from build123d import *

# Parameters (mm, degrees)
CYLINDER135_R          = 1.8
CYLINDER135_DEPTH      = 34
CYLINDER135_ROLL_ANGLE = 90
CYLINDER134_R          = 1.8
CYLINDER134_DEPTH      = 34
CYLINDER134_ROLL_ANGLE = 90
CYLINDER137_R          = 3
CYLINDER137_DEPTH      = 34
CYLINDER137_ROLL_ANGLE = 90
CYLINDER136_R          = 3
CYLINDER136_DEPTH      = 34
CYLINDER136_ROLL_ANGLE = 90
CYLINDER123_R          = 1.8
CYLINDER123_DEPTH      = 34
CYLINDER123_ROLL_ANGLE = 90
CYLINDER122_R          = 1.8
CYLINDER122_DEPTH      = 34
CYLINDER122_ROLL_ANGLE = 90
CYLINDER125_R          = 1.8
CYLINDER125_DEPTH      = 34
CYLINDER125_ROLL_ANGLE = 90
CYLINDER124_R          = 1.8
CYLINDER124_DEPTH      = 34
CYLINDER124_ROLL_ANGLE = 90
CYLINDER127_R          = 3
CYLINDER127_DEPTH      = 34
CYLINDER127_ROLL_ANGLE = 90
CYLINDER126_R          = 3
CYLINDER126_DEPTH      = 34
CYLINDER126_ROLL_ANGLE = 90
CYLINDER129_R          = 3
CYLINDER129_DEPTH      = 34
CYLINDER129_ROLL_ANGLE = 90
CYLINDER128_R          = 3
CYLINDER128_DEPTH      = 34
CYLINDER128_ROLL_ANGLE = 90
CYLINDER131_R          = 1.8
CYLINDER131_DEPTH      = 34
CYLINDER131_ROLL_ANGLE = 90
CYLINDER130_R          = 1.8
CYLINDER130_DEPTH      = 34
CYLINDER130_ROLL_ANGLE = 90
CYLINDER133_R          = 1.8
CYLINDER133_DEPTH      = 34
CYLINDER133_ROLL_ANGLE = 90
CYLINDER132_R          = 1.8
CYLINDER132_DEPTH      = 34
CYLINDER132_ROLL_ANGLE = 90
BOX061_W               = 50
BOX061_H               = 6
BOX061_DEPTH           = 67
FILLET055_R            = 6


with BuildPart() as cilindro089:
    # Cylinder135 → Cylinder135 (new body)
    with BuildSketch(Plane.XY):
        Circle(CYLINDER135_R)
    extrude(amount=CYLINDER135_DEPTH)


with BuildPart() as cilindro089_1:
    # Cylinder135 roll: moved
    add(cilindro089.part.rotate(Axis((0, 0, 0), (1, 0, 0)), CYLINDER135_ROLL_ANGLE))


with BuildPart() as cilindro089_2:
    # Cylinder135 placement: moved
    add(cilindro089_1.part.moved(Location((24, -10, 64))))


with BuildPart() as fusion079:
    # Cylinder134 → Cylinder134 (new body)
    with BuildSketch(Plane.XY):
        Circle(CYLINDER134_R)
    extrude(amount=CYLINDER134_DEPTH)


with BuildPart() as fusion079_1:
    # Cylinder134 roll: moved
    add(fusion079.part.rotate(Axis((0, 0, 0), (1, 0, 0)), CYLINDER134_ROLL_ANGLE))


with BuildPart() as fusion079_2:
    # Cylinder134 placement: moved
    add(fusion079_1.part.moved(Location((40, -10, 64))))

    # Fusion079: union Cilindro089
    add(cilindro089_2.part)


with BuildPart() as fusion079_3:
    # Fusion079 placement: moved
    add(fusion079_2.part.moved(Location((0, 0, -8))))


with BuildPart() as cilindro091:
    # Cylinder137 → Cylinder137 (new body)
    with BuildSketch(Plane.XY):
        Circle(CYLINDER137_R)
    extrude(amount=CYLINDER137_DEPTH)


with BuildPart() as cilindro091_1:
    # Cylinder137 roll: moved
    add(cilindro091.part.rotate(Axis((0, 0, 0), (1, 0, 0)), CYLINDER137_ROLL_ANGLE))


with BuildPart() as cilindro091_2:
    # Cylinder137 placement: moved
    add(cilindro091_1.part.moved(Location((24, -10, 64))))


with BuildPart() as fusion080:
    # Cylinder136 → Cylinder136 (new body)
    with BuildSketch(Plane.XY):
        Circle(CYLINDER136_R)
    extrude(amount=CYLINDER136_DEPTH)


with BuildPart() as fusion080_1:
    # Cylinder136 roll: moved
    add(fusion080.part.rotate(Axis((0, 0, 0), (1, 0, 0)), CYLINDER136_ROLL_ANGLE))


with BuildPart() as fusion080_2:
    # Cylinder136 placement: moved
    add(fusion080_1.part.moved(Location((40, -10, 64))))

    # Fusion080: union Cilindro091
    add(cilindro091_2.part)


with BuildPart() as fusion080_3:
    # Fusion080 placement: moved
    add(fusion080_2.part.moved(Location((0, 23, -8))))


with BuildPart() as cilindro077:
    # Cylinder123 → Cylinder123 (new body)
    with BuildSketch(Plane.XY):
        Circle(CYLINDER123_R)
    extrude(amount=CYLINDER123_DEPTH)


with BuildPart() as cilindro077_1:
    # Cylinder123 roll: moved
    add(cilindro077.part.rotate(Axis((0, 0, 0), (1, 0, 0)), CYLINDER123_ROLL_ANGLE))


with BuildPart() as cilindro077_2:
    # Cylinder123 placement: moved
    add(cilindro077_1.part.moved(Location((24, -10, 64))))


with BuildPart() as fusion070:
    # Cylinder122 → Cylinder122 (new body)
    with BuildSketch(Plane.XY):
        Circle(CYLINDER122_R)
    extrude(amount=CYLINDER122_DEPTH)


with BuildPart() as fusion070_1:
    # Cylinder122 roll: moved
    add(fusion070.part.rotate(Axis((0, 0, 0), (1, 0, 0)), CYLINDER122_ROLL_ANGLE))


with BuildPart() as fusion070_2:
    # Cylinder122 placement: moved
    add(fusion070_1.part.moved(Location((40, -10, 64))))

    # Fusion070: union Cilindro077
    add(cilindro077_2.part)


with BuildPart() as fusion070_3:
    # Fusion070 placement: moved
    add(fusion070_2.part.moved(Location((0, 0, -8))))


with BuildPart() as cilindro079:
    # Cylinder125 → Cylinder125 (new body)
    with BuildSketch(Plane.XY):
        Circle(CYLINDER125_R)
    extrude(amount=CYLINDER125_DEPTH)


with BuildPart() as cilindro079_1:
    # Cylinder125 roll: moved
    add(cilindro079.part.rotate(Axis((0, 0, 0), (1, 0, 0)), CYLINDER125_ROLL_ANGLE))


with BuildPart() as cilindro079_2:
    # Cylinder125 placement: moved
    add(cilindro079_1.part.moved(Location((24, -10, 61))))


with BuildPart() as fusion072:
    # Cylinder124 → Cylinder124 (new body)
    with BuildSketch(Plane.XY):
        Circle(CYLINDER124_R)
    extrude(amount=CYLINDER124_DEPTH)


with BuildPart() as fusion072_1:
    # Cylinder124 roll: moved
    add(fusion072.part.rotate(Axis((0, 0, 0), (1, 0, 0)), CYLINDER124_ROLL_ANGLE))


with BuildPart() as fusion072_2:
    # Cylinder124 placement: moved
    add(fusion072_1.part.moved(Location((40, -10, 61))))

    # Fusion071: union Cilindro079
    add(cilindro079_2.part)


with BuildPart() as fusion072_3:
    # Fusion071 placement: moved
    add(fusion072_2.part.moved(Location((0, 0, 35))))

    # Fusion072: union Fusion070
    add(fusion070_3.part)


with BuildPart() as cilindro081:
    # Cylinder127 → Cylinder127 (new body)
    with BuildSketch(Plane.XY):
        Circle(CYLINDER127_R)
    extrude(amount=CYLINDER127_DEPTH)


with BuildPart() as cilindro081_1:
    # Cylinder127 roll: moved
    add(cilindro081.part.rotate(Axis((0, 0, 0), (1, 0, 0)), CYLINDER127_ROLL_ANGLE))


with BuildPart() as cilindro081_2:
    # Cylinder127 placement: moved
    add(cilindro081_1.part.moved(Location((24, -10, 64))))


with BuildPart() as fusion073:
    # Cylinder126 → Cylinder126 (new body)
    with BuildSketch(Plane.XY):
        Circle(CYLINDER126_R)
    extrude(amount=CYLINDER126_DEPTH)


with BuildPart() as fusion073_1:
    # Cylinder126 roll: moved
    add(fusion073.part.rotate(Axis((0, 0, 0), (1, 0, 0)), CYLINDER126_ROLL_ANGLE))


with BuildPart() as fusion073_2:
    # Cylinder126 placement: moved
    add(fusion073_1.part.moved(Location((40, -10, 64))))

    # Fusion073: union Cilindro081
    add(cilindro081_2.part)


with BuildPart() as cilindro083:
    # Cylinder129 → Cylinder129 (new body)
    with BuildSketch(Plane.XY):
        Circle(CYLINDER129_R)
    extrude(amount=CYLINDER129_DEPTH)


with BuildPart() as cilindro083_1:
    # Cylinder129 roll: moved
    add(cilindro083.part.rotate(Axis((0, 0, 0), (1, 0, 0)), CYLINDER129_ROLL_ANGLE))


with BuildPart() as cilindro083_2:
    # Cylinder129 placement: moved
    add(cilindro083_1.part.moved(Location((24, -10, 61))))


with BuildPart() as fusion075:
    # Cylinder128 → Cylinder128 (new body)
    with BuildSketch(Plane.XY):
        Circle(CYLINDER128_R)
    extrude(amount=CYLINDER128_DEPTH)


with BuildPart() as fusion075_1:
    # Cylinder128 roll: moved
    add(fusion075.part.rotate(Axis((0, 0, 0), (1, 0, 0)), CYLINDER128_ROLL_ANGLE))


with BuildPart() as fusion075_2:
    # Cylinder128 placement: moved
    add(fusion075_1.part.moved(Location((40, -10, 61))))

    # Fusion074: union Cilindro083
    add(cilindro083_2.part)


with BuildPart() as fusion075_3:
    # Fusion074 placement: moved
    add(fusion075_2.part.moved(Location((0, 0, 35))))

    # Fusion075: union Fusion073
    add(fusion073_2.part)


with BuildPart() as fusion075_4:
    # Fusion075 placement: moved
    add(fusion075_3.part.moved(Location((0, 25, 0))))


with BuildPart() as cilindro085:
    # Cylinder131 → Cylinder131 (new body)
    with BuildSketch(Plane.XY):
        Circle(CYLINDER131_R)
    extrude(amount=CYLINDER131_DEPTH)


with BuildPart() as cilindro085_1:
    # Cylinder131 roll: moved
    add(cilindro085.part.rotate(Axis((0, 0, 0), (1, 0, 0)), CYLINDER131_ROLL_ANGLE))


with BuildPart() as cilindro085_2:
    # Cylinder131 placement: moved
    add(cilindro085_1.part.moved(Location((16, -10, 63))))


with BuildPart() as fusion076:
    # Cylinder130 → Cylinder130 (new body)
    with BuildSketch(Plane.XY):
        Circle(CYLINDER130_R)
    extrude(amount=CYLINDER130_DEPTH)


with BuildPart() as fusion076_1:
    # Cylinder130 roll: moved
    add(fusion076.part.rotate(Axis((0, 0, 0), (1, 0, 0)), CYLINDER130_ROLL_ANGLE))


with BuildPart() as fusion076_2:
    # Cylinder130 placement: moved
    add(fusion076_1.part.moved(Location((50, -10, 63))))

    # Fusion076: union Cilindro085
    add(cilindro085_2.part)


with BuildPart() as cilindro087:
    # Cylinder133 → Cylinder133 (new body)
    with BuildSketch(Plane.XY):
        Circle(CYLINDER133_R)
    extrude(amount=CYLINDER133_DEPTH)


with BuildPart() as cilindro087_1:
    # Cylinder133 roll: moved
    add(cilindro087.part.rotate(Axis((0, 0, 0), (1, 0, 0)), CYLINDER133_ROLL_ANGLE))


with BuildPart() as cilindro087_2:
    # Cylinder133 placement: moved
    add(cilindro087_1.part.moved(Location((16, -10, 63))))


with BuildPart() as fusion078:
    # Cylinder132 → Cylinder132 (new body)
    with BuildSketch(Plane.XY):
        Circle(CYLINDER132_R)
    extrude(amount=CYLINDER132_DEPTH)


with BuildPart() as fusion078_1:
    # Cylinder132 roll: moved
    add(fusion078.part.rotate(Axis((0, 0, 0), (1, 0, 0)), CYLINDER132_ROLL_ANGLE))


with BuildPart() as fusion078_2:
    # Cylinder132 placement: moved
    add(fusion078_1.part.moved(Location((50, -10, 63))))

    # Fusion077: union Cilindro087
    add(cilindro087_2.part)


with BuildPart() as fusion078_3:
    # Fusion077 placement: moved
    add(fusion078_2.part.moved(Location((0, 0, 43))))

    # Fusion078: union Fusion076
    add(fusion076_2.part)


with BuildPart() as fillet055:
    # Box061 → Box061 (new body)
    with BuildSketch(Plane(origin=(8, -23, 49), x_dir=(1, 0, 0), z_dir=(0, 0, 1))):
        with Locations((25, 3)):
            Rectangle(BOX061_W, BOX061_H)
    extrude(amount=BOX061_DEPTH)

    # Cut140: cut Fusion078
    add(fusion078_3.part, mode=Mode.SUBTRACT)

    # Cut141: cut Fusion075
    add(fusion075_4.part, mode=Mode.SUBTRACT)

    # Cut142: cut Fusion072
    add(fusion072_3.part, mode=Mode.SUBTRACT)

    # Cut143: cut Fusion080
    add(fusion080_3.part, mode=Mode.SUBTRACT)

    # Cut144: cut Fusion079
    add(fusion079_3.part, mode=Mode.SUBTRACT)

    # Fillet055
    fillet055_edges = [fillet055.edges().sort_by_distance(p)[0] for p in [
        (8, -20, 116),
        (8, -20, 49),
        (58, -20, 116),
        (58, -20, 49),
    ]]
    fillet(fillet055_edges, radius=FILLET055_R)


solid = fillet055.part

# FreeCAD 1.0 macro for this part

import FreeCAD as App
import Part
import Sketcher

V = App.Vector
Q = App.Units.Quantity


def edges_at(feature, points):
    """Names of the edges that pass closest to the given points."""
    edges = feature.Shape.Edges
    near = lambda p: min(range(len(edges)), key=lambda i: edges[i].distToShape(Part.Vertex(*p))[0])
    return sorted({f"Edge{near(p) + 1}" for p in points})

doc = App.newDocument("Part")
body = doc.addObject("PartDesign::Body", "Body")

# Sketch on XY plane
sketch1 = doc.addObject("Sketcher::SketchObject", "Sketch")
body.addObject(sketch1)
sketch1.AttachmentSupport = (doc.XY_Plane, [""])
sketch1.MapMode = "FlatFace"
sketch1.addGeometry(Part.Circle(V(0, 0, 0), V(0, 0, 1), 1.8), False)
sketch1.addConstraint([
    Sketcher.Constraint("Coincident", 0, 3, -1, 1),
    Sketcher.Constraint("Diameter", 0, Q("3.6 mm")),
])
pad1 = doc.addObject("PartDesign::Pad", "Pad")
body.addObject(pad1)
pad1.Profile = sketch1
pad1.Length = 34
body2 = doc.addObject("PartDesign::Body", "Body001")
doc.recompute()

body.Placement = App.Placement(V(0, 0, 0), App.Rotation(V(1, 0, 0), 90))
boolean = doc.addObject("PartDesign::Boolean", "Boolean")
body2.addObject(boolean)
boolean.Type = "Fuse"
boolean.addObjects([body])
body3 = doc.addObject("PartDesign::Body", "Body002")
doc.recompute()

body2.Placement = App.Placement(V(24, -10, 64), App.Rotation(V(0, 0, 1), 0))
boolean2 = doc.addObject("PartDesign::Boolean", "Boolean001")
body3.addObject(boolean2)
boolean2.Type = "Fuse"
boolean2.addObjects([body2])
body4 = doc.addObject("PartDesign::Body", "Body003")

# Sketch on XY plane
sketch2 = doc.addObject("Sketcher::SketchObject", "Sketch001")
body4.addObject(sketch2)
sketch2.AttachmentSupport = (doc.getObject("XY_Plane003"), [""])
sketch2.MapMode = "FlatFace"
sketch2.addGeometry(Part.Circle(V(0, 0, 0), V(0, 0, 1), 1.8), False)
sketch2.addConstraint([
    Sketcher.Constraint("Coincident", 0, 3, -1, 1),
    Sketcher.Constraint("Diameter", 0, Q("3.6 mm")),
])
pad2 = doc.addObject("PartDesign::Pad", "Pad001")
body4.addObject(pad2)
pad2.Profile = sketch2
pad2.Length = 34
body5 = doc.addObject("PartDesign::Body", "Body004")
doc.recompute()

body4.Placement = App.Placement(V(0, 0, 0), App.Rotation(V(1, 0, 0), 90))
boolean3 = doc.addObject("PartDesign::Boolean", "Boolean002")
body5.addObject(boolean3)
boolean3.Type = "Fuse"
boolean3.addObjects([body4])
body6 = doc.addObject("PartDesign::Body", "Body005")
body6.AllowCompound = True
doc.recompute()

body5.Placement = App.Placement(V(40, -10, 64), App.Rotation(V(0, 0, 1), 0))
boolean4 = doc.addObject("PartDesign::Boolean", "Boolean003")
body6.addObject(boolean4)
boolean4.Type = "Fuse"
boolean4.addObjects([body5])
doc.recompute()

boolean5 = doc.addObject("PartDesign::Boolean", "Boolean004")
body6.addObject(boolean5)
boolean5.Type = "Fuse"
boolean5.addObjects([body3])
body7 = doc.addObject("PartDesign::Body", "Body006")
body7.AllowCompound = True
doc.recompute()

body6.Placement = App.Placement(V(0, 0, -8), App.Rotation(V(0, 0, 1), 0))
boolean6 = doc.addObject("PartDesign::Boolean", "Boolean005")
body7.addObject(boolean6)
boolean6.Type = "Fuse"
boolean6.addObjects([body6])
body8 = doc.addObject("PartDesign::Body", "Body007")

# Sketch on XY plane
sketch3 = doc.addObject("Sketcher::SketchObject", "Sketch002")
body8.addObject(sketch3)
sketch3.AttachmentSupport = (doc.getObject("XY_Plane007"), [""])
sketch3.MapMode = "FlatFace"
sketch3.addGeometry(Part.Circle(V(0, 0, 0), V(0, 0, 1), 3), False)
sketch3.addConstraint([
    Sketcher.Constraint("Coincident", 0, 3, -1, 1),
    Sketcher.Constraint("Diameter", 0, Q("6 mm")),
])
pad3 = doc.addObject("PartDesign::Pad", "Pad002")
body8.addObject(pad3)
pad3.Profile = sketch3
pad3.Length = 34
body9 = doc.addObject("PartDesign::Body", "Body008")
doc.recompute()

body8.Placement = App.Placement(V(0, 0, 0), App.Rotation(V(1, 0, 0), 90))
boolean7 = doc.addObject("PartDesign::Boolean", "Boolean006")
body9.addObject(boolean7)
boolean7.Type = "Fuse"
boolean7.addObjects([body8])
body10 = doc.addObject("PartDesign::Body", "Body009")
doc.recompute()

body9.Placement = App.Placement(V(24, -10, 64), App.Rotation(V(0, 0, 1), 0))
boolean8 = doc.addObject("PartDesign::Boolean", "Boolean007")
body10.addObject(boolean8)
boolean8.Type = "Fuse"
boolean8.addObjects([body9])
body11 = doc.addObject("PartDesign::Body", "Body010")

# Sketch on XY plane
sketch4 = doc.addObject("Sketcher::SketchObject", "Sketch003")
body11.addObject(sketch4)
sketch4.AttachmentSupport = (doc.getObject("XY_Plane010"), [""])
sketch4.MapMode = "FlatFace"
sketch4.addGeometry(Part.Circle(V(0, 0, 0), V(0, 0, 1), 3), False)
sketch4.addConstraint([
    Sketcher.Constraint("Coincident", 0, 3, -1, 1),
    Sketcher.Constraint("Diameter", 0, Q("6 mm")),
])
pad4 = doc.addObject("PartDesign::Pad", "Pad003")
body11.addObject(pad4)
pad4.Profile = sketch4
pad4.Length = 34
body12 = doc.addObject("PartDesign::Body", "Body011")
doc.recompute()

body11.Placement = App.Placement(V(0, 0, 0), App.Rotation(V(1, 0, 0), 90))
boolean9 = doc.addObject("PartDesign::Boolean", "Boolean008")
body12.addObject(boolean9)
boolean9.Type = "Fuse"
boolean9.addObjects([body11])
body13 = doc.addObject("PartDesign::Body", "Body012")
body13.AllowCompound = True
doc.recompute()

body12.Placement = App.Placement(V(40, -10, 64), App.Rotation(V(0, 0, 1), 0))
boolean10 = doc.addObject("PartDesign::Boolean", "Boolean009")
body13.addObject(boolean10)
boolean10.Type = "Fuse"
boolean10.addObjects([body12])
doc.recompute()

boolean11 = doc.addObject("PartDesign::Boolean", "Boolean010")
body13.addObject(boolean11)
boolean11.Type = "Fuse"
boolean11.addObjects([body10])
body14 = doc.addObject("PartDesign::Body", "Body013")
body14.AllowCompound = True
doc.recompute()

body13.Placement = App.Placement(V(0, 23, -8), App.Rotation(V(0, 0, 1), 0))
boolean12 = doc.addObject("PartDesign::Boolean", "Boolean011")
body14.addObject(boolean12)
boolean12.Type = "Fuse"
boolean12.addObjects([body13])
body15 = doc.addObject("PartDesign::Body", "Body014")

# Sketch on XY plane
sketch5 = doc.addObject("Sketcher::SketchObject", "Sketch004")
body15.addObject(sketch5)
sketch5.AttachmentSupport = (doc.getObject("XY_Plane014"), [""])
sketch5.MapMode = "FlatFace"
sketch5.addGeometry(Part.Circle(V(0, 0, 0), V(0, 0, 1), 1.8), False)
sketch5.addConstraint([
    Sketcher.Constraint("Coincident", 0, 3, -1, 1),
    Sketcher.Constraint("Diameter", 0, Q("3.6 mm")),
])
pad5 = doc.addObject("PartDesign::Pad", "Pad004")
body15.addObject(pad5)
pad5.Profile = sketch5
pad5.Length = 34
body16 = doc.addObject("PartDesign::Body", "Body015")
doc.recompute()

body15.Placement = App.Placement(V(0, 0, 0), App.Rotation(V(1, 0, 0), 90))
boolean13 = doc.addObject("PartDesign::Boolean", "Boolean012")
body16.addObject(boolean13)
boolean13.Type = "Fuse"
boolean13.addObjects([body15])
body17 = doc.addObject("PartDesign::Body", "Body016")
doc.recompute()

body16.Placement = App.Placement(V(24, -10, 64), App.Rotation(V(0, 0, 1), 0))
boolean14 = doc.addObject("PartDesign::Boolean", "Boolean013")
body17.addObject(boolean14)
boolean14.Type = "Fuse"
boolean14.addObjects([body16])
body18 = doc.addObject("PartDesign::Body", "Body017")

# Sketch on XY plane
sketch6 = doc.addObject("Sketcher::SketchObject", "Sketch005")
body18.addObject(sketch6)
sketch6.AttachmentSupport = (doc.getObject("XY_Plane017"), [""])
sketch6.MapMode = "FlatFace"
sketch6.addGeometry(Part.Circle(V(0, 0, 0), V(0, 0, 1), 1.8), False)
sketch6.addConstraint([
    Sketcher.Constraint("Coincident", 0, 3, -1, 1),
    Sketcher.Constraint("Diameter", 0, Q("3.6 mm")),
])
pad6 = doc.addObject("PartDesign::Pad", "Pad005")
body18.addObject(pad6)
pad6.Profile = sketch6
pad6.Length = 34
body19 = doc.addObject("PartDesign::Body", "Body018")
doc.recompute()

body18.Placement = App.Placement(V(0, 0, 0), App.Rotation(V(1, 0, 0), 90))
boolean15 = doc.addObject("PartDesign::Boolean", "Boolean014")
body19.addObject(boolean15)
boolean15.Type = "Fuse"
boolean15.addObjects([body18])
body20 = doc.addObject("PartDesign::Body", "Body019")
body20.AllowCompound = True
doc.recompute()

body19.Placement = App.Placement(V(40, -10, 64), App.Rotation(V(0, 0, 1), 0))
boolean16 = doc.addObject("PartDesign::Boolean", "Boolean015")
body20.addObject(boolean16)
boolean16.Type = "Fuse"
boolean16.addObjects([body19])
doc.recompute()

boolean17 = doc.addObject("PartDesign::Boolean", "Boolean016")
body20.addObject(boolean17)
boolean17.Type = "Fuse"
boolean17.addObjects([body17])
body21 = doc.addObject("PartDesign::Body", "Body020")
body21.AllowCompound = True
doc.recompute()

body20.Placement = App.Placement(V(0, 0, -8), App.Rotation(V(0, 0, 1), 0))
boolean18 = doc.addObject("PartDesign::Boolean", "Boolean017")
body21.addObject(boolean18)
boolean18.Type = "Fuse"
boolean18.addObjects([body20])
body22 = doc.addObject("PartDesign::Body", "Body021")

# Sketch on XY plane
sketch7 = doc.addObject("Sketcher::SketchObject", "Sketch006")
body22.addObject(sketch7)
sketch7.AttachmentSupport = (doc.getObject("XY_Plane021"), [""])
sketch7.MapMode = "FlatFace"
sketch7.addGeometry(Part.Circle(V(0, 0, 0), V(0, 0, 1), 1.8), False)
sketch7.addConstraint([
    Sketcher.Constraint("Coincident", 0, 3, -1, 1),
    Sketcher.Constraint("Diameter", 0, Q("3.6 mm")),
])
pad7 = doc.addObject("PartDesign::Pad", "Pad006")
body22.addObject(pad7)
pad7.Profile = sketch7
pad7.Length = 34
body23 = doc.addObject("PartDesign::Body", "Body022")
doc.recompute()

body22.Placement = App.Placement(V(0, 0, 0), App.Rotation(V(1, 0, 0), 90))
boolean19 = doc.addObject("PartDesign::Boolean", "Boolean018")
body23.addObject(boolean19)
boolean19.Type = "Fuse"
boolean19.addObjects([body22])
body24 = doc.addObject("PartDesign::Body", "Body023")
doc.recompute()

body23.Placement = App.Placement(V(24, -10, 61), App.Rotation(V(0, 0, 1), 0))
boolean20 = doc.addObject("PartDesign::Boolean", "Boolean019")
body24.addObject(boolean20)
boolean20.Type = "Fuse"
boolean20.addObjects([body23])
body25 = doc.addObject("PartDesign::Body", "Body024")

# Sketch on XY plane
sketch8 = doc.addObject("Sketcher::SketchObject", "Sketch007")
body25.addObject(sketch8)
sketch8.AttachmentSupport = (doc.getObject("XY_Plane024"), [""])
sketch8.MapMode = "FlatFace"
sketch8.addGeometry(Part.Circle(V(0, 0, 0), V(0, 0, 1), 1.8), False)
sketch8.addConstraint([
    Sketcher.Constraint("Coincident", 0, 3, -1, 1),
    Sketcher.Constraint("Diameter", 0, Q("3.6 mm")),
])
pad8 = doc.addObject("PartDesign::Pad", "Pad007")
body25.addObject(pad8)
pad8.Profile = sketch8
pad8.Length = 34
body26 = doc.addObject("PartDesign::Body", "Body025")
doc.recompute()

body25.Placement = App.Placement(V(0, 0, 0), App.Rotation(V(1, 0, 0), 90))
boolean21 = doc.addObject("PartDesign::Boolean", "Boolean020")
body26.addObject(boolean21)
boolean21.Type = "Fuse"
boolean21.addObjects([body25])
body27 = doc.addObject("PartDesign::Body", "Body026")
body27.AllowCompound = True
doc.recompute()

body26.Placement = App.Placement(V(40, -10, 61), App.Rotation(V(0, 0, 1), 0))
boolean22 = doc.addObject("PartDesign::Boolean", "Boolean021")
body27.addObject(boolean22)
boolean22.Type = "Fuse"
boolean22.addObjects([body26])
doc.recompute()

boolean23 = doc.addObject("PartDesign::Boolean", "Boolean022")
body27.addObject(boolean23)
boolean23.Type = "Fuse"
boolean23.addObjects([body24])
body28 = doc.addObject("PartDesign::Body", "Body027")
body28.AllowCompound = True
doc.recompute()

body27.Placement = App.Placement(V(0, 0, 35), App.Rotation(V(0, 0, 1), 0))
boolean24 = doc.addObject("PartDesign::Boolean", "Boolean023")
body28.addObject(boolean24)
boolean24.Type = "Fuse"
boolean24.addObjects([body27])
doc.recompute()

boolean25 = doc.addObject("PartDesign::Boolean", "Boolean024")
body28.addObject(boolean25)
boolean25.Type = "Fuse"
boolean25.addObjects([body21])
body29 = doc.addObject("PartDesign::Body", "Body028")

# Sketch on XY plane
sketch9 = doc.addObject("Sketcher::SketchObject", "Sketch008")
body29.addObject(sketch9)
sketch9.AttachmentSupport = (doc.getObject("XY_Plane028"), [""])
sketch9.MapMode = "FlatFace"
sketch9.addGeometry(Part.Circle(V(0, 0, 0), V(0, 0, 1), 3), False)
sketch9.addConstraint([
    Sketcher.Constraint("Coincident", 0, 3, -1, 1),
    Sketcher.Constraint("Diameter", 0, Q("6 mm")),
])
pad9 = doc.addObject("PartDesign::Pad", "Pad008")
body29.addObject(pad9)
pad9.Profile = sketch9
pad9.Length = 34
body30 = doc.addObject("PartDesign::Body", "Body029")
doc.recompute()

body29.Placement = App.Placement(V(0, 0, 0), App.Rotation(V(1, 0, 0), 90))
boolean26 = doc.addObject("PartDesign::Boolean", "Boolean025")
body30.addObject(boolean26)
boolean26.Type = "Fuse"
boolean26.addObjects([body29])
body31 = doc.addObject("PartDesign::Body", "Body030")
doc.recompute()

body30.Placement = App.Placement(V(24, -10, 64), App.Rotation(V(0, 0, 1), 0))
boolean27 = doc.addObject("PartDesign::Boolean", "Boolean026")
body31.addObject(boolean27)
boolean27.Type = "Fuse"
boolean27.addObjects([body30])
body32 = doc.addObject("PartDesign::Body", "Body031")

# Sketch on XY plane
sketch10 = doc.addObject("Sketcher::SketchObject", "Sketch009")
body32.addObject(sketch10)
sketch10.AttachmentSupport = (doc.getObject("XY_Plane031"), [""])
sketch10.MapMode = "FlatFace"
sketch10.addGeometry(Part.Circle(V(0, 0, 0), V(0, 0, 1), 3), False)
sketch10.addConstraint([
    Sketcher.Constraint("Coincident", 0, 3, -1, 1),
    Sketcher.Constraint("Diameter", 0, Q("6 mm")),
])
pad10 = doc.addObject("PartDesign::Pad", "Pad009")
body32.addObject(pad10)
pad10.Profile = sketch10
pad10.Length = 34
body33 = doc.addObject("PartDesign::Body", "Body032")
doc.recompute()

body32.Placement = App.Placement(V(0, 0, 0), App.Rotation(V(1, 0, 0), 90))
boolean28 = doc.addObject("PartDesign::Boolean", "Boolean027")
body33.addObject(boolean28)
boolean28.Type = "Fuse"
boolean28.addObjects([body32])
body34 = doc.addObject("PartDesign::Body", "Body033")
body34.AllowCompound = True
doc.recompute()

body33.Placement = App.Placement(V(40, -10, 64), App.Rotation(V(0, 0, 1), 0))
boolean29 = doc.addObject("PartDesign::Boolean", "Boolean028")
body34.addObject(boolean29)
boolean29.Type = "Fuse"
boolean29.addObjects([body33])
doc.recompute()

boolean30 = doc.addObject("PartDesign::Boolean", "Boolean029")
body34.addObject(boolean30)
boolean30.Type = "Fuse"
boolean30.addObjects([body31])
body35 = doc.addObject("PartDesign::Body", "Body034")

# Sketch on XY plane
sketch11 = doc.addObject("Sketcher::SketchObject", "Sketch010")
body35.addObject(sketch11)
sketch11.AttachmentSupport = (doc.getObject("XY_Plane034"), [""])
sketch11.MapMode = "FlatFace"
sketch11.addGeometry(Part.Circle(V(0, 0, 0), V(0, 0, 1), 3), False)
sketch11.addConstraint([
    Sketcher.Constraint("Coincident", 0, 3, -1, 1),
    Sketcher.Constraint("Diameter", 0, Q("6 mm")),
])
pad11 = doc.addObject("PartDesign::Pad", "Pad010")
body35.addObject(pad11)
pad11.Profile = sketch11
pad11.Length = 34
body36 = doc.addObject("PartDesign::Body", "Body035")
doc.recompute()

body35.Placement = App.Placement(V(0, 0, 0), App.Rotation(V(1, 0, 0), 90))
boolean31 = doc.addObject("PartDesign::Boolean", "Boolean030")
body36.addObject(boolean31)
boolean31.Type = "Fuse"
boolean31.addObjects([body35])
body37 = doc.addObject("PartDesign::Body", "Body036")
doc.recompute()

body36.Placement = App.Placement(V(24, -10, 61), App.Rotation(V(0, 0, 1), 0))
boolean32 = doc.addObject("PartDesign::Boolean", "Boolean031")
body37.addObject(boolean32)
boolean32.Type = "Fuse"
boolean32.addObjects([body36])
body38 = doc.addObject("PartDesign::Body", "Body037")

# Sketch on XY plane
sketch12 = doc.addObject("Sketcher::SketchObject", "Sketch011")
body38.addObject(sketch12)
sketch12.AttachmentSupport = (doc.getObject("XY_Plane037"), [""])
sketch12.MapMode = "FlatFace"
sketch12.addGeometry(Part.Circle(V(0, 0, 0), V(0, 0, 1), 3), False)
sketch12.addConstraint([
    Sketcher.Constraint("Coincident", 0, 3, -1, 1),
    Sketcher.Constraint("Diameter", 0, Q("6 mm")),
])
pad12 = doc.addObject("PartDesign::Pad", "Pad011")
body38.addObject(pad12)
pad12.Profile = sketch12
pad12.Length = 34
body39 = doc.addObject("PartDesign::Body", "Body038")
doc.recompute()

body38.Placement = App.Placement(V(0, 0, 0), App.Rotation(V(1, 0, 0), 90))
boolean33 = doc.addObject("PartDesign::Boolean", "Boolean032")
body39.addObject(boolean33)
boolean33.Type = "Fuse"
boolean33.addObjects([body38])
body40 = doc.addObject("PartDesign::Body", "Body039")
body40.AllowCompound = True
doc.recompute()

body39.Placement = App.Placement(V(40, -10, 61), App.Rotation(V(0, 0, 1), 0))
boolean34 = doc.addObject("PartDesign::Boolean", "Boolean033")
body40.addObject(boolean34)
boolean34.Type = "Fuse"
boolean34.addObjects([body39])
doc.recompute()

boolean35 = doc.addObject("PartDesign::Boolean", "Boolean034")
body40.addObject(boolean35)
boolean35.Type = "Fuse"
boolean35.addObjects([body37])
body41 = doc.addObject("PartDesign::Body", "Body040")
body41.AllowCompound = True
doc.recompute()

body40.Placement = App.Placement(V(0, 0, 35), App.Rotation(V(0, 0, 1), 0))
boolean36 = doc.addObject("PartDesign::Boolean", "Boolean035")
body41.addObject(boolean36)
boolean36.Type = "Fuse"
boolean36.addObjects([body40])
doc.recompute()

boolean37 = doc.addObject("PartDesign::Boolean", "Boolean036")
body41.addObject(boolean37)
boolean37.Type = "Fuse"
boolean37.addObjects([body34])
body42 = doc.addObject("PartDesign::Body", "Body041")
body42.AllowCompound = True
doc.recompute()

body41.Placement = App.Placement(V(0, 25, 0), App.Rotation(V(0, 0, 1), 0))
boolean38 = doc.addObject("PartDesign::Boolean", "Boolean037")
body42.addObject(boolean38)
boolean38.Type = "Fuse"
boolean38.addObjects([body41])
body43 = doc.addObject("PartDesign::Body", "Body042")

# Sketch on XY plane
sketch13 = doc.addObject("Sketcher::SketchObject", "Sketch012")
body43.addObject(sketch13)
sketch13.AttachmentSupport = (doc.getObject("XY_Plane042"), [""])
sketch13.MapMode = "FlatFace"
sketch13.addGeometry(Part.Circle(V(0, 0, 0), V(0, 0, 1), 1.8), False)
sketch13.addConstraint([
    Sketcher.Constraint("Coincident", 0, 3, -1, 1),
    Sketcher.Constraint("Diameter", 0, Q("3.6 mm")),
])
pad13 = doc.addObject("PartDesign::Pad", "Pad012")
body43.addObject(pad13)
pad13.Profile = sketch13
pad13.Length = 34
body44 = doc.addObject("PartDesign::Body", "Body043")
doc.recompute()

body43.Placement = App.Placement(V(0, 0, 0), App.Rotation(V(1, 0, 0), 90))
boolean39 = doc.addObject("PartDesign::Boolean", "Boolean038")
body44.addObject(boolean39)
boolean39.Type = "Fuse"
boolean39.addObjects([body43])
body45 = doc.addObject("PartDesign::Body", "Body044")
doc.recompute()

body44.Placement = App.Placement(V(16, -10, 63), App.Rotation(V(0, 0, 1), 0))
boolean40 = doc.addObject("PartDesign::Boolean", "Boolean039")
body45.addObject(boolean40)
boolean40.Type = "Fuse"
boolean40.addObjects([body44])
body46 = doc.addObject("PartDesign::Body", "Body045")

# Sketch on XY plane
sketch14 = doc.addObject("Sketcher::SketchObject", "Sketch013")
body46.addObject(sketch14)
sketch14.AttachmentSupport = (doc.getObject("XY_Plane045"), [""])
sketch14.MapMode = "FlatFace"
sketch14.addGeometry(Part.Circle(V(0, 0, 0), V(0, 0, 1), 1.8), False)
sketch14.addConstraint([
    Sketcher.Constraint("Coincident", 0, 3, -1, 1),
    Sketcher.Constraint("Diameter", 0, Q("3.6 mm")),
])
pad14 = doc.addObject("PartDesign::Pad", "Pad013")
body46.addObject(pad14)
pad14.Profile = sketch14
pad14.Length = 34
body47 = doc.addObject("PartDesign::Body", "Body046")
doc.recompute()

body46.Placement = App.Placement(V(0, 0, 0), App.Rotation(V(1, 0, 0), 90))
boolean41 = doc.addObject("PartDesign::Boolean", "Boolean040")
body47.addObject(boolean41)
boolean41.Type = "Fuse"
boolean41.addObjects([body46])
body48 = doc.addObject("PartDesign::Body", "Body047")
body48.AllowCompound = True
doc.recompute()

body47.Placement = App.Placement(V(50, -10, 63), App.Rotation(V(0, 0, 1), 0))
boolean42 = doc.addObject("PartDesign::Boolean", "Boolean041")
body48.addObject(boolean42)
boolean42.Type = "Fuse"
boolean42.addObjects([body47])
doc.recompute()

boolean43 = doc.addObject("PartDesign::Boolean", "Boolean042")
body48.addObject(boolean43)
boolean43.Type = "Fuse"
boolean43.addObjects([body45])
body49 = doc.addObject("PartDesign::Body", "Body048")

# Sketch on XY plane
sketch15 = doc.addObject("Sketcher::SketchObject", "Sketch014")
body49.addObject(sketch15)
sketch15.AttachmentSupport = (doc.getObject("XY_Plane048"), [""])
sketch15.MapMode = "FlatFace"
sketch15.addGeometry(Part.Circle(V(0, 0, 0), V(0, 0, 1), 1.8), False)
sketch15.addConstraint([
    Sketcher.Constraint("Coincident", 0, 3, -1, 1),
    Sketcher.Constraint("Diameter", 0, Q("3.6 mm")),
])
pad15 = doc.addObject("PartDesign::Pad", "Pad014")
body49.addObject(pad15)
pad15.Profile = sketch15
pad15.Length = 34
body50 = doc.addObject("PartDesign::Body", "Body049")
doc.recompute()

body49.Placement = App.Placement(V(0, 0, 0), App.Rotation(V(1, 0, 0), 90))
boolean44 = doc.addObject("PartDesign::Boolean", "Boolean043")
body50.addObject(boolean44)
boolean44.Type = "Fuse"
boolean44.addObjects([body49])
body51 = doc.addObject("PartDesign::Body", "Body050")
doc.recompute()

body50.Placement = App.Placement(V(16, -10, 63), App.Rotation(V(0, 0, 1), 0))
boolean45 = doc.addObject("PartDesign::Boolean", "Boolean044")
body51.addObject(boolean45)
boolean45.Type = "Fuse"
boolean45.addObjects([body50])
body52 = doc.addObject("PartDesign::Body", "Body051")

# Sketch on XY plane
sketch16 = doc.addObject("Sketcher::SketchObject", "Sketch015")
body52.addObject(sketch16)
sketch16.AttachmentSupport = (doc.getObject("XY_Plane051"), [""])
sketch16.MapMode = "FlatFace"
sketch16.addGeometry(Part.Circle(V(0, 0, 0), V(0, 0, 1), 1.8), False)
sketch16.addConstraint([
    Sketcher.Constraint("Coincident", 0, 3, -1, 1),
    Sketcher.Constraint("Diameter", 0, Q("3.6 mm")),
])
pad16 = doc.addObject("PartDesign::Pad", "Pad015")
body52.addObject(pad16)
pad16.Profile = sketch16
pad16.Length = 34
body53 = doc.addObject("PartDesign::Body", "Body052")
doc.recompute()

body52.Placement = App.Placement(V(0, 0, 0), App.Rotation(V(1, 0, 0), 90))
boolean46 = doc.addObject("PartDesign::Boolean", "Boolean045")
body53.addObject(boolean46)
boolean46.Type = "Fuse"
boolean46.addObjects([body52])
body54 = doc.addObject("PartDesign::Body", "Body053")
body54.AllowCompound = True
doc.recompute()

body53.Placement = App.Placement(V(50, -10, 63), App.Rotation(V(0, 0, 1), 0))
boolean47 = doc.addObject("PartDesign::Boolean", "Boolean046")
body54.addObject(boolean47)
boolean47.Type = "Fuse"
boolean47.addObjects([body53])
doc.recompute()

boolean48 = doc.addObject("PartDesign::Boolean", "Boolean047")
body54.addObject(boolean48)
boolean48.Type = "Fuse"
boolean48.addObjects([body51])
body55 = doc.addObject("PartDesign::Body", "Body054")
body55.AllowCompound = True
doc.recompute()

body54.Placement = App.Placement(V(0, 0, 43), App.Rotation(V(0, 0, 1), 0))
boolean49 = doc.addObject("PartDesign::Boolean", "Boolean048")
body55.addObject(boolean49)
boolean49.Type = "Fuse"
boolean49.addObjects([body54])
doc.recompute()

boolean50 = doc.addObject("PartDesign::Boolean", "Boolean049")
body55.addObject(boolean50)
boolean50.Type = "Fuse"
boolean50.addObjects([body48])
body56 = doc.addObject("PartDesign::Body", "Body055")

# Sketch on XY plane
sketch17 = doc.addObject("Sketcher::SketchObject", "Sketch016")
body56.addObject(sketch17)
sketch17.AttachmentSupport = (doc.getObject("XY_Plane055"), [""])
sketch17.MapMode = "FlatFace"
sketch17.AttachmentOffset = App.Placement(V(0, 0, 49), App.Rotation())
sketch17.addGeometry([
    Part.LineSegment(V(8, -17, 0), V(8, -23, 0)),
    Part.LineSegment(V(8, -23, 0), V(58, -23, 0)),
    Part.LineSegment(V(58, -23, 0), V(58, -17, 0)),
    Part.LineSegment(V(58, -17, 0), V(8, -17, 0)),
], False)
sketch17.addConstraint([
    Sketcher.Constraint("Coincident", 0, 2, 1, 1),
    Sketcher.Constraint("Coincident", 1, 2, 2, 1),
    Sketcher.Constraint("Coincident", 2, 2, 3, 1),
    Sketcher.Constraint("Coincident", 3, 2, 0, 1),
    Sketcher.Constraint("Vertical", 0),
    Sketcher.Constraint("Horizontal", 1),
    Sketcher.Constraint("Vertical", 2),
    Sketcher.Constraint("Horizontal", 3),
    Sketcher.Constraint("DistanceX", 1, 1, 1, 2, Q("50 mm")),
    Sketcher.Constraint("DistanceY", 0, 2, 0, 1, Q("6 mm")),
    Sketcher.Constraint("DistanceX", -1, 1, 0, 2, Q("8 mm")),
    Sketcher.Constraint("DistanceY", 0, 2, -1, 1, Q("23 mm")),
])
pad17 = doc.addObject("PartDesign::Pad", "Pad016")
body56.addObject(pad17)
pad17.Profile = sketch17
pad17.Length = 67
doc.recompute()

boolean51 = doc.addObject("PartDesign::Boolean", "Boolean050")
body56.addObject(boolean51)
boolean51.Type = "Cut"
boolean51.addObjects([body55])
doc.recompute()

boolean52 = doc.addObject("PartDesign::Boolean", "Boolean051")
body56.addObject(boolean52)
boolean52.Type = "Cut"
boolean52.addObjects([body42])
doc.recompute()

boolean53 = doc.addObject("PartDesign::Boolean", "Boolean052")
body56.addObject(boolean53)
boolean53.Type = "Cut"
boolean53.addObjects([body28])
doc.recompute()

boolean54 = doc.addObject("PartDesign::Boolean", "Boolean053")
body56.addObject(boolean54)
boolean54.Type = "Cut"
boolean54.addObjects([body14])
doc.recompute()

boolean55 = doc.addObject("PartDesign::Boolean", "Boolean054")
body56.addObject(boolean55)
boolean55.Type = "Cut"
boolean55.addObjects([body7])
doc.recompute()

fillet = doc.addObject("PartDesign::Fillet", "Fillet")
body56.addObject(fillet)
fillet.Base = (boolean55, edges_at(boolean55, [
    (8, -20, 116),
    (8, -20, 49),
    (58, -20, 116),
    (58, -20, 49),
]))
fillet.Radius = 6

doc.recompute()
